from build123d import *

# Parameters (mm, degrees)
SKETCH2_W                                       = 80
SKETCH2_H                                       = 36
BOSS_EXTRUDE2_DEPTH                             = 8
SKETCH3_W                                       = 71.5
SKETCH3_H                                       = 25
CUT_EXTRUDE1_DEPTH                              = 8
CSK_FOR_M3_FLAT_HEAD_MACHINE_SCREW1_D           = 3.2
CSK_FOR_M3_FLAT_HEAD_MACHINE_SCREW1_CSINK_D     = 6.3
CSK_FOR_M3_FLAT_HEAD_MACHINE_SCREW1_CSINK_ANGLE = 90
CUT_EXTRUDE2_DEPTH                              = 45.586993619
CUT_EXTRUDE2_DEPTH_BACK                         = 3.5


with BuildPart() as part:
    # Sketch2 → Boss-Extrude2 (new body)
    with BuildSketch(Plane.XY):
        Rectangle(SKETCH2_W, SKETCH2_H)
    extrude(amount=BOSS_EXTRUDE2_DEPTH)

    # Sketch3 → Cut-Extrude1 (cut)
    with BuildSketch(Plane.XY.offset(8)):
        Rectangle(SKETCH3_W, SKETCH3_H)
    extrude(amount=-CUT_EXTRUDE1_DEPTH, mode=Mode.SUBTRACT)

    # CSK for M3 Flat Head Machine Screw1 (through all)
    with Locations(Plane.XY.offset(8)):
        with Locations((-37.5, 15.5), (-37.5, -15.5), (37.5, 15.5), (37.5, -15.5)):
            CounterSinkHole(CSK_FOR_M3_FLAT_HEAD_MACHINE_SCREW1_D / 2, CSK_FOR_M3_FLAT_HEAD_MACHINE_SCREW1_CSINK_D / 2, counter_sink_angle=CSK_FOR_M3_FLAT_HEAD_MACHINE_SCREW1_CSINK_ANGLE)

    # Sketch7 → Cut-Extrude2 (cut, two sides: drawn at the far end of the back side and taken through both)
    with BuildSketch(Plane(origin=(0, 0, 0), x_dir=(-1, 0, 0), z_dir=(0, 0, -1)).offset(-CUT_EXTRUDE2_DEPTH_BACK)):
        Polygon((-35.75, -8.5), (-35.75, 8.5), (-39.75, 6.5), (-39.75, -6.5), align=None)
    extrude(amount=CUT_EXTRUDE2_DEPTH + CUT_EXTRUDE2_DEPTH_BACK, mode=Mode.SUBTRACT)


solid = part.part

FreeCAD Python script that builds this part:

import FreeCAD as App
import Part
import Sketcher
from FreeCAD import Vector
Q = App.Units.Quantity

doc = App.newDocument("Part")
body = doc.addObject("PartDesign::Body", "Body")

# Sketch on XY plane
sketch1 = body.newObject("Sketcher::SketchObject", "Sketch")
sketch1.AttachmentSupport = (doc.getObject("XY_Plane"), [""])
sketch1.MapMode = "FlatFace"
sketch1.addGeometry([
    Part.LineSegment(Vector(-40, 18, 0), Vector(-40, -18, 0)),
    Part.LineSegment(Vector(-40, -18, 0), Vector(40, -18, 0)),
    Part.LineSegment(Vector(40, -18, 0), Vector(40, 18, 0)),
    Part.LineSegment(Vector(40, 18, 0), Vector(-40, 18, 0)),
], False)
sketch1.addConstraint([
    Sketcher.Constraint("Coincident", 0, 2, 1, 1),
    Sketcher.Constraint("Coincident", 1, 2, 2, 1),
    Sketcher.Constraint("Coincident", 2, 2, 3, 1),
    Sketcher.Constraint("Coincident", 3, 2, 0, 1),
    Sketcher.Constraint("Vertical", 0),
    Sketcher.Constraint("Horizontal", 1),
    Sketcher.Constraint("Vertical", 2),
    Sketcher.Constraint("Horizontal", 3),
    Sketcher.Constraint("Symmetric", 0, 2, 2, 2, -1, 1),
    Sketcher.Constraint("DistanceX", 1, 1, 1, 2, Q("80 mm")),
    Sketcher.Constraint("DistanceY", 0, 2, 0, 1, Q("36 mm")),
])
pad1 = body.newObject("PartDesign::Pad", "Pad")
pad1.Profile = sketch1
pad1.Length = 8

# Sketch on XY plane
sketch2 = body.newObject("Sketcher::SketchObject", "Sketch001")
sketch2.AttachmentSupport = (doc.getObject("XY_Plane"), [""])
sketch2.MapMode = "FlatFace"
sketch2.AttachmentOffset = App.Placement(Vector(0, 0, 8), App.Rotation())
sketch2.addGeometry([
    Part.LineSegment(Vector(-36, 12, 0), Vector(-36, -12, 0)),
    Part.LineSegment(Vector(-36, -12, 0), Vector(36, -12, 0)),
    Part.LineSegment(Vector(36, -12, 0), Vector(36, 12, 0)),
    Part.LineSegment(Vector(36, 12, 0), Vector(-36, 12, 0)),
], False)
sketch2.addConstraint([
    Sketcher.Constraint("Coincident", 0, 2, 1, 1),
    Sketcher.Constraint("Coincident", 1, 2, 2, 1),
    Sketcher.Constraint("Coincident", 2, 2, 3, 1),
    Sketcher.Constraint("Coincident", 3, 2, 0, 1),
    Sketcher.Constraint("Vertical", 0),
    Sketcher.Constraint("Horizontal", 1),
    Sketcher.Constraint("Vertical", 2),
    Sketcher.Constraint("Horizontal", 3),
    Sketcher.Constraint("Symmetric", 0, 2, 2, 2, -1, 1),
    Sketcher.Constraint("DistanceY", 0, 2, 0, 1, Q("25 mm")),
    Sketcher.Constraint("DistanceX", 1, 1, 1, 2, Q("71.5 mm")),
])
pocket1 = body.newObject("PartDesign::Pocket", "Pocket")
pocket1.Profile = sketch2
pocket1.Length = 8

# Sketch on XY plane
sketch3 = body.newObject("Sketcher::SketchObject", "Sketch002")
sketch3.AttachmentSupport = (doc.getObject("XY_Plane"), [""])
sketch3.MapMode = "FlatFace"
sketch3.AttachmentOffset = App.Placement(Vector(0, 0, 8), App.Rotation())
sketch3.addGeometry([
    Part.Circle(Vector(-37.5, 15.5, 0), Vector(0, 0, 1), 1.6),
    Part.Circle(Vector(-37.5, -15.5, 0), Vector(0, 0, 1), 1.6),
    Part.Circle(Vector(37.5, 15.5, 0), Vector(0, 0, 1), 1.6),
    Part.Circle(Vector(37.5, -15.5, 0), Vector(0, 0, 1), 1.6),
], False)
sketch3.addConstraint([
    Sketcher.Constraint("Equal", 0, 1),
    Sketcher.Constraint("Equal", 1, 2),
    Sketcher.Constraint("Equal", 2, 3),
    Sketcher.Constraint("Symmetric", 1, 3, 2, 3, -1, 1),
    Sketcher.Constraint("Symmetric", 0, 3, 3, 3, -1, 1),
    Sketcher.Constraint("Symmetric", 0, 3, 2, 3, -2),
    Sketcher.Constraint("Diameter", 0, Q("3.2 mm")),
    Sketcher.Constraint("DistanceY", 1, 3, 0, 3, Q("31 mm")),
    Sketcher.Constraint("DistanceX", 0, 3, 2, 3, Q("75 mm")),
])
doc.recompute()
hole = body.newObject("PartDesign::Hole", "Hole")
hole.Profile = sketch3
hole.ThreadType = "None"
hole.Diameter = 3.2
hole.DepthType = "ThroughAll"
hole.HoleCutType = "Countersink"
hole.HoleCutDiameter = 6.3
hole.HoleCutCountersinkAngle = 90

# Sketch on XY plane
sketch4 = body.newObject("Sketcher::SketchObject", "Sketch003")
sketch4.AttachmentSupport = (doc.getObject("XY_Plane"), [""])
sketch4.MapMode = "FlatFace"
sketch4.addGeometry([
    Part.LineSegment(Vector(35.8, -8.5, 0), Vector(35.8, 8.5, 0)),
    Part.LineSegment(Vector(35.8, 8.5, 0), Vector(39.8, 6.5, 0)),
    Part.LineSegment(Vector(39.8, 6.5, 0), Vector(39.8, -6.5, 0)),
    Part.LineSegment(Vector(39.8, -6.5, 0), Vector(35.8, -8.5, 0)),
], False)
sketch4.addConstraint([
    Sketcher.Constraint("Coincident", 0, 2, 1, 1),
    Sketcher.Constraint("Coincident", 1, 2, 2, 1),
    Sketcher.Constraint("Coincident", 2, 2, 3, 1),
    Sketcher.Constraint("Coincident", 3, 2, 0, 1),
    Sketcher.Constraint("Vertical", 0),
    Sketcher.Constraint("Vertical", 2),
    Sketcher.Constraint("Equal", 1, 3),
    Sketcher.Constraint("DistanceY", 0, 1, 0, 2, Q("17 mm")),
    Sketcher.Constraint("DistanceY", 2, 2, 2, 1, Q("13 mm")),
    Sketcher.Constraint("DistanceX", 0, 2, 1, 2, Q("4 mm")),
    Sketcher.Constraint("DistanceY", -1, 1, 0, 2, Q("8.5 mm")),
    Sketcher.Constraint("DistanceX", -1, 1, 0, 2, Q("35.75 mm")),
])
pocket2 = body.newObject("PartDesign::Pocket", "Pocket001")
pocket2.Profile = sketch4
pocket2.Type = "TwoLengths"
pocket2.Length = 45.586994
pocket2.Length2 = 3.5

doc.recompute()
